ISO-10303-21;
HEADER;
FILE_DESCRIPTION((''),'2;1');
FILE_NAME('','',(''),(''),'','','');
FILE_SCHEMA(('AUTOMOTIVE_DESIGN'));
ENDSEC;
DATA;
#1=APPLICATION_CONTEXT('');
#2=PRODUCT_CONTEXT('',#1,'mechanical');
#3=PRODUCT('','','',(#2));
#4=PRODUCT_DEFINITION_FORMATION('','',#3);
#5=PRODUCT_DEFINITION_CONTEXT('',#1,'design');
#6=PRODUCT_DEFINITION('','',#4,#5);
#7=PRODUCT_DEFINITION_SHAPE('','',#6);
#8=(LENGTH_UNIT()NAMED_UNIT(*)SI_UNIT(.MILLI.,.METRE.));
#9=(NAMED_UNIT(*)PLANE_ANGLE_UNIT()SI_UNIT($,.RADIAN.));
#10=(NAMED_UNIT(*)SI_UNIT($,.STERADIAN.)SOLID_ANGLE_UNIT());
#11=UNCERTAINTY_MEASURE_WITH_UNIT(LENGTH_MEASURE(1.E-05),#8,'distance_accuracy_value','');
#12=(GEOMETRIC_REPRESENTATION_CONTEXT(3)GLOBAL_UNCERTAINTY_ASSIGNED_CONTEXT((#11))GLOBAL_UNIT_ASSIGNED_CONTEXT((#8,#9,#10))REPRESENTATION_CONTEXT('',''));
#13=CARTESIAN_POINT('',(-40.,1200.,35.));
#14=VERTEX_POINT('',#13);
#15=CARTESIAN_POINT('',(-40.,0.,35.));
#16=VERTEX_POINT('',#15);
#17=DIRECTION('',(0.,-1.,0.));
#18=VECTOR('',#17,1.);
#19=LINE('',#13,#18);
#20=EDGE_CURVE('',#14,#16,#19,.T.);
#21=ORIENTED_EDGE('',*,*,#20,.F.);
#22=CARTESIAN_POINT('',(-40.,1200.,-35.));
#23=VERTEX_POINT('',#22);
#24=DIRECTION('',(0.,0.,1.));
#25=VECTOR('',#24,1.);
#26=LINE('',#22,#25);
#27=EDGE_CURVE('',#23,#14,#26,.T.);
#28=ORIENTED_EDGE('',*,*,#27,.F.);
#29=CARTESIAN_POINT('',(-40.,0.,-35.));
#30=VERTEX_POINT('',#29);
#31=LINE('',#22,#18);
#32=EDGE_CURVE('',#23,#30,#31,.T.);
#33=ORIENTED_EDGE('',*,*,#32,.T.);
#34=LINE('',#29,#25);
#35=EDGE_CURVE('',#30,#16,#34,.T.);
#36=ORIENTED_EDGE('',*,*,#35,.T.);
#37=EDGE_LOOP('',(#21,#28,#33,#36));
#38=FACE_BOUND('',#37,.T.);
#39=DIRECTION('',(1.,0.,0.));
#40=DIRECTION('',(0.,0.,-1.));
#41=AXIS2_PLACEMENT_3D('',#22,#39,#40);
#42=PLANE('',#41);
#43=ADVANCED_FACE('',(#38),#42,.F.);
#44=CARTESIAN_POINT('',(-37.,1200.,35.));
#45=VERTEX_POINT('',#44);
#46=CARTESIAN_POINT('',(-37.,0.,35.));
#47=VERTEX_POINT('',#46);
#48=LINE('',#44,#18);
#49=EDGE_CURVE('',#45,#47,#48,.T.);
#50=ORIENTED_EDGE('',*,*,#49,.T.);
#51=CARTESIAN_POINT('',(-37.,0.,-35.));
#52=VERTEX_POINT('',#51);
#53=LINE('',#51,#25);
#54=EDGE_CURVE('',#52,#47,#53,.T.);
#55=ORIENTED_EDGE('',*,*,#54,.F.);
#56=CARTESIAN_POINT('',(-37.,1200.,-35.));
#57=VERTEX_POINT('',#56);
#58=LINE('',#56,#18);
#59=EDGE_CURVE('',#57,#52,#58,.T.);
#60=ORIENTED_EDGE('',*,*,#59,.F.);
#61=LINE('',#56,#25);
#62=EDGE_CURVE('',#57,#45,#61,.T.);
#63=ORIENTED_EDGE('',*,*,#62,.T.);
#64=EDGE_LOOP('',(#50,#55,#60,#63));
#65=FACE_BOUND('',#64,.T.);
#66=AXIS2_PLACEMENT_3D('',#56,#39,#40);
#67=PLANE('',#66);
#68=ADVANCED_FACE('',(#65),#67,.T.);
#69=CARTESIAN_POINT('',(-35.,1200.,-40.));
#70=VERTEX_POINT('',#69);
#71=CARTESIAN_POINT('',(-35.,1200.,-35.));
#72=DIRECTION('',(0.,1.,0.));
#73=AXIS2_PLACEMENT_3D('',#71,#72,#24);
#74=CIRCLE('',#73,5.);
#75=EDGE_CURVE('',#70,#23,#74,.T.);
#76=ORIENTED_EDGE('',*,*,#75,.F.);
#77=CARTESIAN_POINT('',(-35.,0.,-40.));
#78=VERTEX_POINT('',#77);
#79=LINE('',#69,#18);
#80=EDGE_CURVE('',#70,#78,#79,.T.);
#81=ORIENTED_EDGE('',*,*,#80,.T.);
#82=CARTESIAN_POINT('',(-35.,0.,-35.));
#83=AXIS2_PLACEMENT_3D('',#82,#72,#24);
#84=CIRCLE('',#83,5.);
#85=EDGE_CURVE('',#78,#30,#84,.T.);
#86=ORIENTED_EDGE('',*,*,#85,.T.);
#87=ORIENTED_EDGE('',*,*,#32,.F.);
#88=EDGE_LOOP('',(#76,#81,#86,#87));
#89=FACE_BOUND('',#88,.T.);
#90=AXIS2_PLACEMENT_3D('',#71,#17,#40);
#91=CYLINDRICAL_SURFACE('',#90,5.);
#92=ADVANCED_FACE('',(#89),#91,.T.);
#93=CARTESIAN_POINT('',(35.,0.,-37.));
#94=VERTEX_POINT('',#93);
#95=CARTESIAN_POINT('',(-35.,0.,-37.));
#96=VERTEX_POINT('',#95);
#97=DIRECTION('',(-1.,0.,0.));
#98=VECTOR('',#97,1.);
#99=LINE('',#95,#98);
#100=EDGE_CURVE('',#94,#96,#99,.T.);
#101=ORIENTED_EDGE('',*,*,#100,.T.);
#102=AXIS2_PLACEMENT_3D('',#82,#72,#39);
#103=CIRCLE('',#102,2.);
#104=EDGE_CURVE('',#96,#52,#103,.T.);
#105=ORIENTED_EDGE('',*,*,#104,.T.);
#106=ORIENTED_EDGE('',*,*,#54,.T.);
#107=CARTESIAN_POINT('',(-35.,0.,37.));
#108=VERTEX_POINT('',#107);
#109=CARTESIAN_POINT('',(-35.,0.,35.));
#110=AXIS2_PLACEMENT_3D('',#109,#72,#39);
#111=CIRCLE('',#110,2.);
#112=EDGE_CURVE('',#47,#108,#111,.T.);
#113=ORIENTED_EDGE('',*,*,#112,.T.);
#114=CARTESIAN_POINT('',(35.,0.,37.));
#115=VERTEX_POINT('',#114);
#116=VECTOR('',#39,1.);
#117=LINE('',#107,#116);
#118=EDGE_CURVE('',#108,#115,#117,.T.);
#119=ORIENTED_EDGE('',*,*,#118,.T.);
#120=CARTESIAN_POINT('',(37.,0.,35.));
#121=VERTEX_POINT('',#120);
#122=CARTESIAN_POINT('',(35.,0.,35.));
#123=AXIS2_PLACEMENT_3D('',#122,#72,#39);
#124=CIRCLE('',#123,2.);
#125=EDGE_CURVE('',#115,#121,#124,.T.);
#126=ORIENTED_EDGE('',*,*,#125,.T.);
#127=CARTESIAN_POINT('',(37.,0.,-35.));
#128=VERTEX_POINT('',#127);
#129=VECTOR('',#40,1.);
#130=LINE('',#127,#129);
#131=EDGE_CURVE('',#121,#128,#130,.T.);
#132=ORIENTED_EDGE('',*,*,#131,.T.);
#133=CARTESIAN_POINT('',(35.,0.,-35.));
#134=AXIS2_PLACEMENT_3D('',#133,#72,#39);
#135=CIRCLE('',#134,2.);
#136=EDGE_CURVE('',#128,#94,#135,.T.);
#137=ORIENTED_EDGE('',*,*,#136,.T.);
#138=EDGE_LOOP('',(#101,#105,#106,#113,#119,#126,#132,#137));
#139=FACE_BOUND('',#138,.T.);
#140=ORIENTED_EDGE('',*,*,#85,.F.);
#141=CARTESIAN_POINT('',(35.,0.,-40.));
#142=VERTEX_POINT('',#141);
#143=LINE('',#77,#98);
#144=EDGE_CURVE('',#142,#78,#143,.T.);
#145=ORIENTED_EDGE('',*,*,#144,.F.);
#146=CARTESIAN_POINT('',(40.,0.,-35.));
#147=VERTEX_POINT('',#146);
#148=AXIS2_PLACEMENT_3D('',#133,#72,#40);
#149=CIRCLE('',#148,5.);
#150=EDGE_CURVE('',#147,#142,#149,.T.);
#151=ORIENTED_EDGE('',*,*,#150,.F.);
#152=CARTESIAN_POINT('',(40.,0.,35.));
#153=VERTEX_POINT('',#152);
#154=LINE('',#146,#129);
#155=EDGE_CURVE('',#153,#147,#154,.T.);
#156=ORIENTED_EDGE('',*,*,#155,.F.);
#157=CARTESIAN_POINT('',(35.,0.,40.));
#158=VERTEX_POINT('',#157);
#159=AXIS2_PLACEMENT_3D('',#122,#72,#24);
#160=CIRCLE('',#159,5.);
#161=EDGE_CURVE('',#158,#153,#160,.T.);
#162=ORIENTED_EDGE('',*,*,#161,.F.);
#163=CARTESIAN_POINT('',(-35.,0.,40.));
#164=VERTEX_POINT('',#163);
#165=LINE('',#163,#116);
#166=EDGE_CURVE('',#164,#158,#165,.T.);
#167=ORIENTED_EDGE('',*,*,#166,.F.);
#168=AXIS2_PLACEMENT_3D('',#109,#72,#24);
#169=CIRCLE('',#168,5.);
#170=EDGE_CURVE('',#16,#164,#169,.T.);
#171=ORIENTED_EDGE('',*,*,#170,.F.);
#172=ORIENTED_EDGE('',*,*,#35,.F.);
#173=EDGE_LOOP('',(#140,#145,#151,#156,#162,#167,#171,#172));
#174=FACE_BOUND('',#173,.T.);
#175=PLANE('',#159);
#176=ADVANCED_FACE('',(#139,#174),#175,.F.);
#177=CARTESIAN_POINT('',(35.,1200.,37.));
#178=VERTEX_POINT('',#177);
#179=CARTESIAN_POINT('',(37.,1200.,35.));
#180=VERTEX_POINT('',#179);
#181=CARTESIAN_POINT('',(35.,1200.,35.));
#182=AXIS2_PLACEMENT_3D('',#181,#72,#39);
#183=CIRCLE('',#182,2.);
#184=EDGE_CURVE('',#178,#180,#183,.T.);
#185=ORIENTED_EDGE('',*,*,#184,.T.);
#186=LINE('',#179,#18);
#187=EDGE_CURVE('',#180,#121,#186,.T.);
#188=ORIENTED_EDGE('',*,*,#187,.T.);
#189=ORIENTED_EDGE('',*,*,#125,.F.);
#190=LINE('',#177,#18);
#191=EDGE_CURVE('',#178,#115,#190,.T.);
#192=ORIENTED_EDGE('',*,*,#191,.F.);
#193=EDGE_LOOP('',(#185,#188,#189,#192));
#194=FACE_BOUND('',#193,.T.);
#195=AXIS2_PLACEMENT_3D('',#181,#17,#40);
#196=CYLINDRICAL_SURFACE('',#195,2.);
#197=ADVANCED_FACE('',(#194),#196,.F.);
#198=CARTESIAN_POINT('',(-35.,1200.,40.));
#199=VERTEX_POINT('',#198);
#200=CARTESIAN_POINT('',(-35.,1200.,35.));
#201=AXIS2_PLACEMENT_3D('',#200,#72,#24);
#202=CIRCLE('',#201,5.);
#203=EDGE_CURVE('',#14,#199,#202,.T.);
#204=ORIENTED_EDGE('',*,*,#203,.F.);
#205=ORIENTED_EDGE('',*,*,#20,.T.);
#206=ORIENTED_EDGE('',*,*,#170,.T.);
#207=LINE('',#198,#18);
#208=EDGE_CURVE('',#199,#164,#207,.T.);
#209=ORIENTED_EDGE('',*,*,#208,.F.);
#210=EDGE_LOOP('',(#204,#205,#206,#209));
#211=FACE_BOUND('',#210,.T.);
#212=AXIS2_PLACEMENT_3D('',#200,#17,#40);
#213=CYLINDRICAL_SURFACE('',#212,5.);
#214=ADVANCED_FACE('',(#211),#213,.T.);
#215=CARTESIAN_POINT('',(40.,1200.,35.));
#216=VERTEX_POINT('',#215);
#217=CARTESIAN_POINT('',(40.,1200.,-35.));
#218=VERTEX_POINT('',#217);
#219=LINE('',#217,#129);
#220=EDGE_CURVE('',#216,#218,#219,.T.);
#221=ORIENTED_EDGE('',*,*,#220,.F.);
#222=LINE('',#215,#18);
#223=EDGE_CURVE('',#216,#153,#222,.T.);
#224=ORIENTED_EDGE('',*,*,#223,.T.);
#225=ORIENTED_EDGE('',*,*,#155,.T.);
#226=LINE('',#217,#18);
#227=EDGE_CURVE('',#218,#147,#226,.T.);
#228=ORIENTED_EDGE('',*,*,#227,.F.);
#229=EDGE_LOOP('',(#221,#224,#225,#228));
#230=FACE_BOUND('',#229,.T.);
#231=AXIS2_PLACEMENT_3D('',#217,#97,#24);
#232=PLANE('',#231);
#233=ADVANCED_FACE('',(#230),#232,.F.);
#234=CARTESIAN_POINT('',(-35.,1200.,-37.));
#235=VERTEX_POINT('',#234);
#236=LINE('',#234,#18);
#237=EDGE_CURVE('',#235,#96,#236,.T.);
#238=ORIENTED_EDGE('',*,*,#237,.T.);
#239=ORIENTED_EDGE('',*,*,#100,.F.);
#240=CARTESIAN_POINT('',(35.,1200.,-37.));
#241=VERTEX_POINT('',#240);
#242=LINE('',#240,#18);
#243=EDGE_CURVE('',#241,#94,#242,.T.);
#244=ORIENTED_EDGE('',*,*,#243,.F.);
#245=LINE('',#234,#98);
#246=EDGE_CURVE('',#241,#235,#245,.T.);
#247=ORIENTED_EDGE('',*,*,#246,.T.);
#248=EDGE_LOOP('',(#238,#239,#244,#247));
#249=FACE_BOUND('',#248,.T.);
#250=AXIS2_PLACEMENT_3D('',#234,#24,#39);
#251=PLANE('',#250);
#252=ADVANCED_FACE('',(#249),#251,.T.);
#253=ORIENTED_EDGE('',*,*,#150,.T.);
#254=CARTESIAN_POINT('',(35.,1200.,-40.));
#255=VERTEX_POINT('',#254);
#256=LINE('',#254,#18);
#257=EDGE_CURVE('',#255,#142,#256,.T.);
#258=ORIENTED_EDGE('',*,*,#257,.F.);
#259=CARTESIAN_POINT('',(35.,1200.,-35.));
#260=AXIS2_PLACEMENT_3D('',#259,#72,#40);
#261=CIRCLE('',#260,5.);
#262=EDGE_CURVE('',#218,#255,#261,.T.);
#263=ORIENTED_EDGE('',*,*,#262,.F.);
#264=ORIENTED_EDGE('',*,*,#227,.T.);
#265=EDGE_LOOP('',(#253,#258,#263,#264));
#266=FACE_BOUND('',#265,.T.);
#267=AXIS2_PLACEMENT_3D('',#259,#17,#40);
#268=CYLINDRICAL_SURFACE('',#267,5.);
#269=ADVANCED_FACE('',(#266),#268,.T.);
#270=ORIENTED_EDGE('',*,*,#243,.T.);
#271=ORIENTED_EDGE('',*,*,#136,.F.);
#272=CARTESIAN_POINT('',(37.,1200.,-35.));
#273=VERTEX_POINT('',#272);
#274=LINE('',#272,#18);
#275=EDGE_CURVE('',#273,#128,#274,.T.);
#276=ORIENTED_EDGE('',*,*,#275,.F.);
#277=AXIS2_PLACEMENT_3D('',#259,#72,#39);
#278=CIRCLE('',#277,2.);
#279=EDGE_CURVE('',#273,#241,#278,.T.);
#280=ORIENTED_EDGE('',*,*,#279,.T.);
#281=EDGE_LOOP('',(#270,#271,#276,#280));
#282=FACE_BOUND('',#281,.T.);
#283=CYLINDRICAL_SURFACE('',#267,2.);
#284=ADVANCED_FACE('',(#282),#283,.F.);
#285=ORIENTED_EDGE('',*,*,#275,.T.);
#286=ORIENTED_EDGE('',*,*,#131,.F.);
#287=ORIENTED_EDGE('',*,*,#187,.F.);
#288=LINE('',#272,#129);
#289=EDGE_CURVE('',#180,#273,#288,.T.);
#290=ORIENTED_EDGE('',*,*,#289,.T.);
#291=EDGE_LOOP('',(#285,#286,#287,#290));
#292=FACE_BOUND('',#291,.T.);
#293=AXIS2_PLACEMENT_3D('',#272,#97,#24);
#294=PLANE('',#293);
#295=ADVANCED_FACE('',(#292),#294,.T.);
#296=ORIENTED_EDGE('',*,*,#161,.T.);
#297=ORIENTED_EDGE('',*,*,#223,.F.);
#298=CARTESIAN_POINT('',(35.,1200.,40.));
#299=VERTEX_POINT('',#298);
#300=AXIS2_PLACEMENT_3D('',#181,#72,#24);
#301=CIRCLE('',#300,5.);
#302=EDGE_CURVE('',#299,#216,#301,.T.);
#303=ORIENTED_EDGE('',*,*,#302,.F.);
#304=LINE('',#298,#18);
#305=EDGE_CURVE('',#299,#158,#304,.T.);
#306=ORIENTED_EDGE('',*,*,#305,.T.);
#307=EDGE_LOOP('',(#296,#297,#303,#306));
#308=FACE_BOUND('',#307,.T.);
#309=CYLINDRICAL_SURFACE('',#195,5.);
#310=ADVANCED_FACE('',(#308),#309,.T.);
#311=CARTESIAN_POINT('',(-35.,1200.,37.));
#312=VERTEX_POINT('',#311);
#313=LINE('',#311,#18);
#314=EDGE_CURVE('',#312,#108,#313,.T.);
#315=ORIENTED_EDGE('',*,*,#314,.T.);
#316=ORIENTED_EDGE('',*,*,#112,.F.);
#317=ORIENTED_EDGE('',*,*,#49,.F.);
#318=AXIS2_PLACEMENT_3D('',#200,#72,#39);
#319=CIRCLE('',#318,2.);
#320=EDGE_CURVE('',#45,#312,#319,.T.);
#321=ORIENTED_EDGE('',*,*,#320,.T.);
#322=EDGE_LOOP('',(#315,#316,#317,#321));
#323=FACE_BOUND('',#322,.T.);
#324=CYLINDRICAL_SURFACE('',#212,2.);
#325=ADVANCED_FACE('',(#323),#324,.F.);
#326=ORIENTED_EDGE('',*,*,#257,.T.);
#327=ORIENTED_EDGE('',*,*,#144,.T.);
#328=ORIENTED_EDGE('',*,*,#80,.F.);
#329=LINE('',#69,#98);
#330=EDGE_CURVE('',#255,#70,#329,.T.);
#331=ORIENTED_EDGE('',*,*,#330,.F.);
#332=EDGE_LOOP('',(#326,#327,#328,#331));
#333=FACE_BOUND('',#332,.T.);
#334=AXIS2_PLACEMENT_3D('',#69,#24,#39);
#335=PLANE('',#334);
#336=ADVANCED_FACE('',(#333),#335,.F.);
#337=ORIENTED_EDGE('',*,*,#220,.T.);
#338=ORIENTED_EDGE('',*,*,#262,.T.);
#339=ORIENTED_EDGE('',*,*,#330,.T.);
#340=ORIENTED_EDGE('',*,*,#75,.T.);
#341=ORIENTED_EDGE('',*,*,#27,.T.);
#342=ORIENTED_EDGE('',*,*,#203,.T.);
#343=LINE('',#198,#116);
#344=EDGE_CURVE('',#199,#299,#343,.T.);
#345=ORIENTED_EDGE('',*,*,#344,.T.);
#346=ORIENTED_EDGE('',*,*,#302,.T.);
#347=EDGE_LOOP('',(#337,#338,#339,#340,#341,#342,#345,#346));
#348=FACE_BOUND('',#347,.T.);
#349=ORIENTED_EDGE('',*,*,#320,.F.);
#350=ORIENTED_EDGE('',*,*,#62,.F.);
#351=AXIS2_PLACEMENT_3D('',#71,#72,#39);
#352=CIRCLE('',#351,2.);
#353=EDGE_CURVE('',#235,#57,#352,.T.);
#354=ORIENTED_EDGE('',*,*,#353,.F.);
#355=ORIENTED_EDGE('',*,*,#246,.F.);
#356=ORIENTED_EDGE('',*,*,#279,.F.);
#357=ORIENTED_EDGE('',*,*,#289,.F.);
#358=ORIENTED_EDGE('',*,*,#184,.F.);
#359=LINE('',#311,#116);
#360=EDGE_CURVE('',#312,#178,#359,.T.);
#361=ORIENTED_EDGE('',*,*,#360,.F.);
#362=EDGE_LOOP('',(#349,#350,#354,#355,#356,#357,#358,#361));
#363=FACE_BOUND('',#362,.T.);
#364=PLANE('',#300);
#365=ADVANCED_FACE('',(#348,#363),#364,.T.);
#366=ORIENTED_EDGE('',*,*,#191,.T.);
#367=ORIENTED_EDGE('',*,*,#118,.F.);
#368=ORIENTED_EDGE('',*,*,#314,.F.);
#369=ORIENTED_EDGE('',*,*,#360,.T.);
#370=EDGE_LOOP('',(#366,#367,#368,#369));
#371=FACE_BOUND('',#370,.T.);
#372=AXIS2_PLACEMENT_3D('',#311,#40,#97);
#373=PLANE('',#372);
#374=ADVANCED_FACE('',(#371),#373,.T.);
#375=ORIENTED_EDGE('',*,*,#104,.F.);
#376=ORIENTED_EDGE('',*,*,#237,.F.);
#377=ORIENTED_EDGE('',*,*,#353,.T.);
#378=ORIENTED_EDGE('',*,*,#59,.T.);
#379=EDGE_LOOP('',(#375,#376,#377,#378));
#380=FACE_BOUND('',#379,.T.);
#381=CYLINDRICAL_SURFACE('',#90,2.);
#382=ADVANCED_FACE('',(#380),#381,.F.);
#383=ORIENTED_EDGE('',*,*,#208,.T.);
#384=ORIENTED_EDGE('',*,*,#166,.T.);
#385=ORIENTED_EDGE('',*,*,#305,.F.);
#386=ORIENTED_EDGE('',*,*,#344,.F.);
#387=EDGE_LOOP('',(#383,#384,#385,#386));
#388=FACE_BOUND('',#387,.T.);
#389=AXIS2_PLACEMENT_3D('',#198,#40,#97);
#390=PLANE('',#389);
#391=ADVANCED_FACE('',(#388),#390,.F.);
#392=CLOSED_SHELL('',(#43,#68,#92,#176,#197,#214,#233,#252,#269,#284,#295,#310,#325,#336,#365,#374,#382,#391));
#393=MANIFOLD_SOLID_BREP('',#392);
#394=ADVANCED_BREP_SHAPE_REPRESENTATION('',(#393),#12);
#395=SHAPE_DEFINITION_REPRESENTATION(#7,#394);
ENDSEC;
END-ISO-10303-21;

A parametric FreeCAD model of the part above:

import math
import FreeCAD as App
import Part
import Sketcher
from FreeCAD import Vector
Q = App.Units.Quantity

doc = App.newDocument("Part")
body = doc.addObject("PartDesign::Body", "Body")

# Sketch on XZ plane
sketch1 = body.newObject("Sketcher::SketchObject", "Sketch")
sketch1.AttachmentSupport = (doc.getObject("XZ_Plane"), [""])
sketch1.MapMode = "FlatFace"
sketch1.addGeometry([
    Part.LineSegment(Vector(-40, -35, 0), Vector(-40, 35, 0)),  # 0
    Part.ArcOfCircle(Part.Circle(Vector(-35, 35, 0), Vector(0, 0, 1), 5), math.radians(90), math.radians(180)),  # 1
    Part.LineSegment(Vector(-35, 40, 0), Vector(35, 40, 0)),  # 2
    Part.ArcOfCircle(Part.Circle(Vector(35, 35, 0), Vector(0, 0, 1), 5), math.radians(0), math.radians(90)),  # 3
    Part.LineSegment(Vector(40, 35, 0), Vector(40, -35, 0)),  # 4
    Part.ArcOfCircle(Part.Circle(Vector(35, -35, 0), Vector(0, 0, 1), 5), math.radians(-90), math.radians(0)),  # 5
    Part.LineSegment(Vector(35, -40, 0), Vector(-35, -40, 0)),  # 6
    Part.ArcOfCircle(Part.Circle(Vector(-35, -35, 0), Vector(0, 0, 1), 5), math.radians(180), math.radians(270)),  # 7
    Part.LineSegment(Vector(-37, 35, 0), Vector(-37, -35, 0)),  # 8
    Part.ArcOfCircle(Part.Circle(Vector(-35, -35, 0), Vector(0, 0, 1), 2), math.radians(-180), math.radians(-90)),  # 9
    Part.LineSegment(Vector(-35, -37, 0), Vector(35, -37, 0)),  # 10
    Part.ArcOfCircle(Part.Circle(Vector(35, -35, 0), Vector(0, 0, 1), 2), math.radians(-90), math.radians(0)),  # 11
    Part.LineSegment(Vector(37, -35, 0), Vector(37, 35, 0)),  # 12
    Part.ArcOfCircle(Part.Circle(Vector(35, 35, 0), Vector(0, 0, 1), 2), math.radians(0), math.radians(90)),  # 13
    Part.LineSegment(Vector(35, 37, 0), Vector(-35, 37, 0)),  # 14
    Part.ArcOfCircle(Part.Circle(Vector(-35, 35, 0), Vector(0, 0, 1), 2), math.radians(90), math.radians(180)),  # 15
], False)
sketch1.addConstraint([
    Sketcher.Constraint("Tangent", 0, 2, 1, 2),
    Sketcher.Constraint("Tangent", 1, 1, 2, 1),
    Sketcher.Constraint("Tangent", 2, 2, 3, 2),
    Sketcher.Constraint("Tangent", 3, 1, 4, 1),
    Sketcher.Constraint("Tangent", 4, 2, 5, 2),
    Sketcher.Constraint("Tangent", 5, 1, 6, 1),
    Sketcher.Constraint("Tangent", 6, 2, 7, 2),
    Sketcher.Constraint("Tangent", 7, 1, 0, 1),
    Sketcher.Constraint("Tangent", 8, 2, 9, 1),
    Sketcher.Constraint("Tangent", 9, 2, 10, 1),
    Sketcher.Constraint("Tangent", 10, 2, 11, 1),
    Sketcher.Constraint("Tangent", 11, 2, 12, 1),
    Sketcher.Constraint("Tangent", 12, 2, 13, 1),
    Sketcher.Constraint("Tangent", 13, 2, 14, 1),
    Sketcher.Constraint("Tangent", 14, 2, 15, 1),
    Sketcher.Constraint("Tangent", 15, 2, 8, 1),
    Sketcher.Constraint("Vertical", 0),
    Sketcher.Constraint("Horizontal", 2),
    Sketcher.Constraint("Vertical", 4),
    Sketcher.Constraint("Horizontal", 6),
    Sketcher.Constraint("Vertical", 8),
    Sketcher.Constraint("Horizontal", 10),
    Sketcher.Constraint("Vertical", 12),
    Sketcher.Constraint("Horizontal", 14),
    Sketcher.Constraint("Coincident", 9, 3, 7, 3),
    Sketcher.Constraint("Coincident", 11, 3, 5, 3),
    Sketcher.Constraint("Coincident", 13, 3, 3, 3),
    Sketcher.Constraint("Equal", 1, 3),
    Sketcher.Constraint("Equal", 3, 5),
    Sketcher.Constraint("Equal", 5, 7),
    Sketcher.Constraint("Equal", 13, 15),
    Sketcher.Constraint("Symmetric", 1, 3, 5, 3, -1, 1),
    Sketcher.Constraint("Equal", 14, 0),
    Sketcher.Constraint("Radius", 1, Q("5 mm")),
    Sketcher.Constraint("Radius", 9, Q("2 mm")),
    Sketcher.Constraint("DistanceX", 2, 1, 2, 2, Q("70 mm")),
])
pad1 = body.newObject("PartDesign::Pad", "Pad")
pad1.Profile = sketch1
pad1.Length = 1200
pad1.Reversed = True

doc.recompute()
